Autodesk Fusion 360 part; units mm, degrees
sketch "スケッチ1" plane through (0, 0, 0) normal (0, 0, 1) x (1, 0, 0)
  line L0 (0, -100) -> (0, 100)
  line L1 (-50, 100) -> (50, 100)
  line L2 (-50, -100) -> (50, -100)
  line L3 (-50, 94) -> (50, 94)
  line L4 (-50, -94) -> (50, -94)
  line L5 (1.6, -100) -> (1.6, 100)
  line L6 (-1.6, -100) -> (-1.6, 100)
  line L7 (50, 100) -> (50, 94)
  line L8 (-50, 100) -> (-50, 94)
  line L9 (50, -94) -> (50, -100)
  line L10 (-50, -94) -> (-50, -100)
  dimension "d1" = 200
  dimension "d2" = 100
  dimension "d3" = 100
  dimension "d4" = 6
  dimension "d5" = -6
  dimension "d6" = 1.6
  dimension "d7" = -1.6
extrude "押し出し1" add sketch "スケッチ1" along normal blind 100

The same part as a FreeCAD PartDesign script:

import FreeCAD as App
import Part
import Sketcher

V = App.Vector


def add_polygon(sketch, points):
    """Adds a closed chain of lines whose ends are joined by coincident constraints."""
    first, n = sketch.GeometryCount, len(points)
    for a, b in zip(points, points[1:] + points[:1]):
        sketch.addGeometry(Part.LineSegment(App.Vector(*a, 0), App.Vector(*b, 0)), False)
    for i in range(n):
        sketch.addConstraint(Sketcher.Constraint("Coincident", first + i, 2, first + (i + 1) % n, 1))

doc = App.newDocument("Part")
params = doc.addObject("Spreadsheet::Sheet", "Params")
for row, (alias, value) in enumerate([
    ("sketch1_width", "100 mm"),
    ("sketch1_height", "6 mm"),
    ("pad1_length", "100 mm"),
], start=1):
    params.set(f"A{row}", alias)
    params.set(f"B{row}", "=" + value)
    params.setAlias(f"B{row}", alias)

body = doc.addObject("PartDesign::Body", "Body")

sketch1 = body.newObject("Sketcher::SketchObject", "Sketch")
sketch1.AttachmentSupport = (doc.getObject("XY_Plane"), [""])
sketch1.MapMode = "FlatFace"
add_polygon(sketch1, [(50, -100), (50, -94), (2, -94), (2, 94), (50, 94), (50, 100), (-50, 100), (-50, 94), (-2, 94), (-2, -94), (-50, -94), (-50, -100)])
sketch1.addConstraint(Sketcher.Constraint("Vertical", 0))
sketch1.addConstraint(Sketcher.Constraint("Horizontal", 1))
sketch1.addConstraint(Sketcher.Constraint("Vertical", 2))
sketch1.addConstraint(Sketcher.Constraint("Horizontal", 3))
sketch1.addConstraint(Sketcher.Constraint("Vertical", 4))
sketch1.addConstraint(Sketcher.Constraint("Horizontal", 5))
sketch1.addConstraint(Sketcher.Constraint("Vertical", 6))
sketch1.addConstraint(Sketcher.Constraint("Horizontal", 7))
sketch1.addConstraint(Sketcher.Constraint("Vertical", 8))
sketch1.addConstraint(Sketcher.Constraint("Horizontal", 9))
sketch1.addConstraint(Sketcher.Constraint("Vertical", 10))
sketch1.addConstraint(Sketcher.Constraint("Horizontal", 11))
sketch1.addConstraint(Sketcher.Constraint("Symmetric", 0, 2, 6, 2, -1, 1))
sketch1.addConstraint(Sketcher.Constraint("Symmetric", 2, 2, 8, 2, -1, 1))
sketch1.addConstraint(Sketcher.Constraint("Symmetric", 4, 2, 10, 2, -1, 1))
sketch1.addConstraint(Sketcher.Constraint("Symmetric", 3, 2, 6, 2, -2))
sketch1.addConstraint(Sketcher.Constraint("DistanceX", 5, 2, 5, 1, 100.0))
sketch1.addConstraint(Sketcher.Constraint("DistanceY", 0, 1, 0, 2, 6.0))
sketch1.addConstraint(Sketcher.Constraint("DistanceY", -1, 1, 4, 2, 100.0))
sketch1.addConstraint(Sketcher.Constraint("DistanceX", -1, 1, 1, 2, 1.6))
sketch1.setExpression("Constraints[28]", "Params.sketch1_width")
sketch1.setExpression("Constraints[29]", "Params.sketch1_height")
pad1 = body.newObject("PartDesign::Pad", "Pad")
pad1.Profile = sketch1
pad1.setExpression("Length", "Params.pad1_length")

doc.recompute()
